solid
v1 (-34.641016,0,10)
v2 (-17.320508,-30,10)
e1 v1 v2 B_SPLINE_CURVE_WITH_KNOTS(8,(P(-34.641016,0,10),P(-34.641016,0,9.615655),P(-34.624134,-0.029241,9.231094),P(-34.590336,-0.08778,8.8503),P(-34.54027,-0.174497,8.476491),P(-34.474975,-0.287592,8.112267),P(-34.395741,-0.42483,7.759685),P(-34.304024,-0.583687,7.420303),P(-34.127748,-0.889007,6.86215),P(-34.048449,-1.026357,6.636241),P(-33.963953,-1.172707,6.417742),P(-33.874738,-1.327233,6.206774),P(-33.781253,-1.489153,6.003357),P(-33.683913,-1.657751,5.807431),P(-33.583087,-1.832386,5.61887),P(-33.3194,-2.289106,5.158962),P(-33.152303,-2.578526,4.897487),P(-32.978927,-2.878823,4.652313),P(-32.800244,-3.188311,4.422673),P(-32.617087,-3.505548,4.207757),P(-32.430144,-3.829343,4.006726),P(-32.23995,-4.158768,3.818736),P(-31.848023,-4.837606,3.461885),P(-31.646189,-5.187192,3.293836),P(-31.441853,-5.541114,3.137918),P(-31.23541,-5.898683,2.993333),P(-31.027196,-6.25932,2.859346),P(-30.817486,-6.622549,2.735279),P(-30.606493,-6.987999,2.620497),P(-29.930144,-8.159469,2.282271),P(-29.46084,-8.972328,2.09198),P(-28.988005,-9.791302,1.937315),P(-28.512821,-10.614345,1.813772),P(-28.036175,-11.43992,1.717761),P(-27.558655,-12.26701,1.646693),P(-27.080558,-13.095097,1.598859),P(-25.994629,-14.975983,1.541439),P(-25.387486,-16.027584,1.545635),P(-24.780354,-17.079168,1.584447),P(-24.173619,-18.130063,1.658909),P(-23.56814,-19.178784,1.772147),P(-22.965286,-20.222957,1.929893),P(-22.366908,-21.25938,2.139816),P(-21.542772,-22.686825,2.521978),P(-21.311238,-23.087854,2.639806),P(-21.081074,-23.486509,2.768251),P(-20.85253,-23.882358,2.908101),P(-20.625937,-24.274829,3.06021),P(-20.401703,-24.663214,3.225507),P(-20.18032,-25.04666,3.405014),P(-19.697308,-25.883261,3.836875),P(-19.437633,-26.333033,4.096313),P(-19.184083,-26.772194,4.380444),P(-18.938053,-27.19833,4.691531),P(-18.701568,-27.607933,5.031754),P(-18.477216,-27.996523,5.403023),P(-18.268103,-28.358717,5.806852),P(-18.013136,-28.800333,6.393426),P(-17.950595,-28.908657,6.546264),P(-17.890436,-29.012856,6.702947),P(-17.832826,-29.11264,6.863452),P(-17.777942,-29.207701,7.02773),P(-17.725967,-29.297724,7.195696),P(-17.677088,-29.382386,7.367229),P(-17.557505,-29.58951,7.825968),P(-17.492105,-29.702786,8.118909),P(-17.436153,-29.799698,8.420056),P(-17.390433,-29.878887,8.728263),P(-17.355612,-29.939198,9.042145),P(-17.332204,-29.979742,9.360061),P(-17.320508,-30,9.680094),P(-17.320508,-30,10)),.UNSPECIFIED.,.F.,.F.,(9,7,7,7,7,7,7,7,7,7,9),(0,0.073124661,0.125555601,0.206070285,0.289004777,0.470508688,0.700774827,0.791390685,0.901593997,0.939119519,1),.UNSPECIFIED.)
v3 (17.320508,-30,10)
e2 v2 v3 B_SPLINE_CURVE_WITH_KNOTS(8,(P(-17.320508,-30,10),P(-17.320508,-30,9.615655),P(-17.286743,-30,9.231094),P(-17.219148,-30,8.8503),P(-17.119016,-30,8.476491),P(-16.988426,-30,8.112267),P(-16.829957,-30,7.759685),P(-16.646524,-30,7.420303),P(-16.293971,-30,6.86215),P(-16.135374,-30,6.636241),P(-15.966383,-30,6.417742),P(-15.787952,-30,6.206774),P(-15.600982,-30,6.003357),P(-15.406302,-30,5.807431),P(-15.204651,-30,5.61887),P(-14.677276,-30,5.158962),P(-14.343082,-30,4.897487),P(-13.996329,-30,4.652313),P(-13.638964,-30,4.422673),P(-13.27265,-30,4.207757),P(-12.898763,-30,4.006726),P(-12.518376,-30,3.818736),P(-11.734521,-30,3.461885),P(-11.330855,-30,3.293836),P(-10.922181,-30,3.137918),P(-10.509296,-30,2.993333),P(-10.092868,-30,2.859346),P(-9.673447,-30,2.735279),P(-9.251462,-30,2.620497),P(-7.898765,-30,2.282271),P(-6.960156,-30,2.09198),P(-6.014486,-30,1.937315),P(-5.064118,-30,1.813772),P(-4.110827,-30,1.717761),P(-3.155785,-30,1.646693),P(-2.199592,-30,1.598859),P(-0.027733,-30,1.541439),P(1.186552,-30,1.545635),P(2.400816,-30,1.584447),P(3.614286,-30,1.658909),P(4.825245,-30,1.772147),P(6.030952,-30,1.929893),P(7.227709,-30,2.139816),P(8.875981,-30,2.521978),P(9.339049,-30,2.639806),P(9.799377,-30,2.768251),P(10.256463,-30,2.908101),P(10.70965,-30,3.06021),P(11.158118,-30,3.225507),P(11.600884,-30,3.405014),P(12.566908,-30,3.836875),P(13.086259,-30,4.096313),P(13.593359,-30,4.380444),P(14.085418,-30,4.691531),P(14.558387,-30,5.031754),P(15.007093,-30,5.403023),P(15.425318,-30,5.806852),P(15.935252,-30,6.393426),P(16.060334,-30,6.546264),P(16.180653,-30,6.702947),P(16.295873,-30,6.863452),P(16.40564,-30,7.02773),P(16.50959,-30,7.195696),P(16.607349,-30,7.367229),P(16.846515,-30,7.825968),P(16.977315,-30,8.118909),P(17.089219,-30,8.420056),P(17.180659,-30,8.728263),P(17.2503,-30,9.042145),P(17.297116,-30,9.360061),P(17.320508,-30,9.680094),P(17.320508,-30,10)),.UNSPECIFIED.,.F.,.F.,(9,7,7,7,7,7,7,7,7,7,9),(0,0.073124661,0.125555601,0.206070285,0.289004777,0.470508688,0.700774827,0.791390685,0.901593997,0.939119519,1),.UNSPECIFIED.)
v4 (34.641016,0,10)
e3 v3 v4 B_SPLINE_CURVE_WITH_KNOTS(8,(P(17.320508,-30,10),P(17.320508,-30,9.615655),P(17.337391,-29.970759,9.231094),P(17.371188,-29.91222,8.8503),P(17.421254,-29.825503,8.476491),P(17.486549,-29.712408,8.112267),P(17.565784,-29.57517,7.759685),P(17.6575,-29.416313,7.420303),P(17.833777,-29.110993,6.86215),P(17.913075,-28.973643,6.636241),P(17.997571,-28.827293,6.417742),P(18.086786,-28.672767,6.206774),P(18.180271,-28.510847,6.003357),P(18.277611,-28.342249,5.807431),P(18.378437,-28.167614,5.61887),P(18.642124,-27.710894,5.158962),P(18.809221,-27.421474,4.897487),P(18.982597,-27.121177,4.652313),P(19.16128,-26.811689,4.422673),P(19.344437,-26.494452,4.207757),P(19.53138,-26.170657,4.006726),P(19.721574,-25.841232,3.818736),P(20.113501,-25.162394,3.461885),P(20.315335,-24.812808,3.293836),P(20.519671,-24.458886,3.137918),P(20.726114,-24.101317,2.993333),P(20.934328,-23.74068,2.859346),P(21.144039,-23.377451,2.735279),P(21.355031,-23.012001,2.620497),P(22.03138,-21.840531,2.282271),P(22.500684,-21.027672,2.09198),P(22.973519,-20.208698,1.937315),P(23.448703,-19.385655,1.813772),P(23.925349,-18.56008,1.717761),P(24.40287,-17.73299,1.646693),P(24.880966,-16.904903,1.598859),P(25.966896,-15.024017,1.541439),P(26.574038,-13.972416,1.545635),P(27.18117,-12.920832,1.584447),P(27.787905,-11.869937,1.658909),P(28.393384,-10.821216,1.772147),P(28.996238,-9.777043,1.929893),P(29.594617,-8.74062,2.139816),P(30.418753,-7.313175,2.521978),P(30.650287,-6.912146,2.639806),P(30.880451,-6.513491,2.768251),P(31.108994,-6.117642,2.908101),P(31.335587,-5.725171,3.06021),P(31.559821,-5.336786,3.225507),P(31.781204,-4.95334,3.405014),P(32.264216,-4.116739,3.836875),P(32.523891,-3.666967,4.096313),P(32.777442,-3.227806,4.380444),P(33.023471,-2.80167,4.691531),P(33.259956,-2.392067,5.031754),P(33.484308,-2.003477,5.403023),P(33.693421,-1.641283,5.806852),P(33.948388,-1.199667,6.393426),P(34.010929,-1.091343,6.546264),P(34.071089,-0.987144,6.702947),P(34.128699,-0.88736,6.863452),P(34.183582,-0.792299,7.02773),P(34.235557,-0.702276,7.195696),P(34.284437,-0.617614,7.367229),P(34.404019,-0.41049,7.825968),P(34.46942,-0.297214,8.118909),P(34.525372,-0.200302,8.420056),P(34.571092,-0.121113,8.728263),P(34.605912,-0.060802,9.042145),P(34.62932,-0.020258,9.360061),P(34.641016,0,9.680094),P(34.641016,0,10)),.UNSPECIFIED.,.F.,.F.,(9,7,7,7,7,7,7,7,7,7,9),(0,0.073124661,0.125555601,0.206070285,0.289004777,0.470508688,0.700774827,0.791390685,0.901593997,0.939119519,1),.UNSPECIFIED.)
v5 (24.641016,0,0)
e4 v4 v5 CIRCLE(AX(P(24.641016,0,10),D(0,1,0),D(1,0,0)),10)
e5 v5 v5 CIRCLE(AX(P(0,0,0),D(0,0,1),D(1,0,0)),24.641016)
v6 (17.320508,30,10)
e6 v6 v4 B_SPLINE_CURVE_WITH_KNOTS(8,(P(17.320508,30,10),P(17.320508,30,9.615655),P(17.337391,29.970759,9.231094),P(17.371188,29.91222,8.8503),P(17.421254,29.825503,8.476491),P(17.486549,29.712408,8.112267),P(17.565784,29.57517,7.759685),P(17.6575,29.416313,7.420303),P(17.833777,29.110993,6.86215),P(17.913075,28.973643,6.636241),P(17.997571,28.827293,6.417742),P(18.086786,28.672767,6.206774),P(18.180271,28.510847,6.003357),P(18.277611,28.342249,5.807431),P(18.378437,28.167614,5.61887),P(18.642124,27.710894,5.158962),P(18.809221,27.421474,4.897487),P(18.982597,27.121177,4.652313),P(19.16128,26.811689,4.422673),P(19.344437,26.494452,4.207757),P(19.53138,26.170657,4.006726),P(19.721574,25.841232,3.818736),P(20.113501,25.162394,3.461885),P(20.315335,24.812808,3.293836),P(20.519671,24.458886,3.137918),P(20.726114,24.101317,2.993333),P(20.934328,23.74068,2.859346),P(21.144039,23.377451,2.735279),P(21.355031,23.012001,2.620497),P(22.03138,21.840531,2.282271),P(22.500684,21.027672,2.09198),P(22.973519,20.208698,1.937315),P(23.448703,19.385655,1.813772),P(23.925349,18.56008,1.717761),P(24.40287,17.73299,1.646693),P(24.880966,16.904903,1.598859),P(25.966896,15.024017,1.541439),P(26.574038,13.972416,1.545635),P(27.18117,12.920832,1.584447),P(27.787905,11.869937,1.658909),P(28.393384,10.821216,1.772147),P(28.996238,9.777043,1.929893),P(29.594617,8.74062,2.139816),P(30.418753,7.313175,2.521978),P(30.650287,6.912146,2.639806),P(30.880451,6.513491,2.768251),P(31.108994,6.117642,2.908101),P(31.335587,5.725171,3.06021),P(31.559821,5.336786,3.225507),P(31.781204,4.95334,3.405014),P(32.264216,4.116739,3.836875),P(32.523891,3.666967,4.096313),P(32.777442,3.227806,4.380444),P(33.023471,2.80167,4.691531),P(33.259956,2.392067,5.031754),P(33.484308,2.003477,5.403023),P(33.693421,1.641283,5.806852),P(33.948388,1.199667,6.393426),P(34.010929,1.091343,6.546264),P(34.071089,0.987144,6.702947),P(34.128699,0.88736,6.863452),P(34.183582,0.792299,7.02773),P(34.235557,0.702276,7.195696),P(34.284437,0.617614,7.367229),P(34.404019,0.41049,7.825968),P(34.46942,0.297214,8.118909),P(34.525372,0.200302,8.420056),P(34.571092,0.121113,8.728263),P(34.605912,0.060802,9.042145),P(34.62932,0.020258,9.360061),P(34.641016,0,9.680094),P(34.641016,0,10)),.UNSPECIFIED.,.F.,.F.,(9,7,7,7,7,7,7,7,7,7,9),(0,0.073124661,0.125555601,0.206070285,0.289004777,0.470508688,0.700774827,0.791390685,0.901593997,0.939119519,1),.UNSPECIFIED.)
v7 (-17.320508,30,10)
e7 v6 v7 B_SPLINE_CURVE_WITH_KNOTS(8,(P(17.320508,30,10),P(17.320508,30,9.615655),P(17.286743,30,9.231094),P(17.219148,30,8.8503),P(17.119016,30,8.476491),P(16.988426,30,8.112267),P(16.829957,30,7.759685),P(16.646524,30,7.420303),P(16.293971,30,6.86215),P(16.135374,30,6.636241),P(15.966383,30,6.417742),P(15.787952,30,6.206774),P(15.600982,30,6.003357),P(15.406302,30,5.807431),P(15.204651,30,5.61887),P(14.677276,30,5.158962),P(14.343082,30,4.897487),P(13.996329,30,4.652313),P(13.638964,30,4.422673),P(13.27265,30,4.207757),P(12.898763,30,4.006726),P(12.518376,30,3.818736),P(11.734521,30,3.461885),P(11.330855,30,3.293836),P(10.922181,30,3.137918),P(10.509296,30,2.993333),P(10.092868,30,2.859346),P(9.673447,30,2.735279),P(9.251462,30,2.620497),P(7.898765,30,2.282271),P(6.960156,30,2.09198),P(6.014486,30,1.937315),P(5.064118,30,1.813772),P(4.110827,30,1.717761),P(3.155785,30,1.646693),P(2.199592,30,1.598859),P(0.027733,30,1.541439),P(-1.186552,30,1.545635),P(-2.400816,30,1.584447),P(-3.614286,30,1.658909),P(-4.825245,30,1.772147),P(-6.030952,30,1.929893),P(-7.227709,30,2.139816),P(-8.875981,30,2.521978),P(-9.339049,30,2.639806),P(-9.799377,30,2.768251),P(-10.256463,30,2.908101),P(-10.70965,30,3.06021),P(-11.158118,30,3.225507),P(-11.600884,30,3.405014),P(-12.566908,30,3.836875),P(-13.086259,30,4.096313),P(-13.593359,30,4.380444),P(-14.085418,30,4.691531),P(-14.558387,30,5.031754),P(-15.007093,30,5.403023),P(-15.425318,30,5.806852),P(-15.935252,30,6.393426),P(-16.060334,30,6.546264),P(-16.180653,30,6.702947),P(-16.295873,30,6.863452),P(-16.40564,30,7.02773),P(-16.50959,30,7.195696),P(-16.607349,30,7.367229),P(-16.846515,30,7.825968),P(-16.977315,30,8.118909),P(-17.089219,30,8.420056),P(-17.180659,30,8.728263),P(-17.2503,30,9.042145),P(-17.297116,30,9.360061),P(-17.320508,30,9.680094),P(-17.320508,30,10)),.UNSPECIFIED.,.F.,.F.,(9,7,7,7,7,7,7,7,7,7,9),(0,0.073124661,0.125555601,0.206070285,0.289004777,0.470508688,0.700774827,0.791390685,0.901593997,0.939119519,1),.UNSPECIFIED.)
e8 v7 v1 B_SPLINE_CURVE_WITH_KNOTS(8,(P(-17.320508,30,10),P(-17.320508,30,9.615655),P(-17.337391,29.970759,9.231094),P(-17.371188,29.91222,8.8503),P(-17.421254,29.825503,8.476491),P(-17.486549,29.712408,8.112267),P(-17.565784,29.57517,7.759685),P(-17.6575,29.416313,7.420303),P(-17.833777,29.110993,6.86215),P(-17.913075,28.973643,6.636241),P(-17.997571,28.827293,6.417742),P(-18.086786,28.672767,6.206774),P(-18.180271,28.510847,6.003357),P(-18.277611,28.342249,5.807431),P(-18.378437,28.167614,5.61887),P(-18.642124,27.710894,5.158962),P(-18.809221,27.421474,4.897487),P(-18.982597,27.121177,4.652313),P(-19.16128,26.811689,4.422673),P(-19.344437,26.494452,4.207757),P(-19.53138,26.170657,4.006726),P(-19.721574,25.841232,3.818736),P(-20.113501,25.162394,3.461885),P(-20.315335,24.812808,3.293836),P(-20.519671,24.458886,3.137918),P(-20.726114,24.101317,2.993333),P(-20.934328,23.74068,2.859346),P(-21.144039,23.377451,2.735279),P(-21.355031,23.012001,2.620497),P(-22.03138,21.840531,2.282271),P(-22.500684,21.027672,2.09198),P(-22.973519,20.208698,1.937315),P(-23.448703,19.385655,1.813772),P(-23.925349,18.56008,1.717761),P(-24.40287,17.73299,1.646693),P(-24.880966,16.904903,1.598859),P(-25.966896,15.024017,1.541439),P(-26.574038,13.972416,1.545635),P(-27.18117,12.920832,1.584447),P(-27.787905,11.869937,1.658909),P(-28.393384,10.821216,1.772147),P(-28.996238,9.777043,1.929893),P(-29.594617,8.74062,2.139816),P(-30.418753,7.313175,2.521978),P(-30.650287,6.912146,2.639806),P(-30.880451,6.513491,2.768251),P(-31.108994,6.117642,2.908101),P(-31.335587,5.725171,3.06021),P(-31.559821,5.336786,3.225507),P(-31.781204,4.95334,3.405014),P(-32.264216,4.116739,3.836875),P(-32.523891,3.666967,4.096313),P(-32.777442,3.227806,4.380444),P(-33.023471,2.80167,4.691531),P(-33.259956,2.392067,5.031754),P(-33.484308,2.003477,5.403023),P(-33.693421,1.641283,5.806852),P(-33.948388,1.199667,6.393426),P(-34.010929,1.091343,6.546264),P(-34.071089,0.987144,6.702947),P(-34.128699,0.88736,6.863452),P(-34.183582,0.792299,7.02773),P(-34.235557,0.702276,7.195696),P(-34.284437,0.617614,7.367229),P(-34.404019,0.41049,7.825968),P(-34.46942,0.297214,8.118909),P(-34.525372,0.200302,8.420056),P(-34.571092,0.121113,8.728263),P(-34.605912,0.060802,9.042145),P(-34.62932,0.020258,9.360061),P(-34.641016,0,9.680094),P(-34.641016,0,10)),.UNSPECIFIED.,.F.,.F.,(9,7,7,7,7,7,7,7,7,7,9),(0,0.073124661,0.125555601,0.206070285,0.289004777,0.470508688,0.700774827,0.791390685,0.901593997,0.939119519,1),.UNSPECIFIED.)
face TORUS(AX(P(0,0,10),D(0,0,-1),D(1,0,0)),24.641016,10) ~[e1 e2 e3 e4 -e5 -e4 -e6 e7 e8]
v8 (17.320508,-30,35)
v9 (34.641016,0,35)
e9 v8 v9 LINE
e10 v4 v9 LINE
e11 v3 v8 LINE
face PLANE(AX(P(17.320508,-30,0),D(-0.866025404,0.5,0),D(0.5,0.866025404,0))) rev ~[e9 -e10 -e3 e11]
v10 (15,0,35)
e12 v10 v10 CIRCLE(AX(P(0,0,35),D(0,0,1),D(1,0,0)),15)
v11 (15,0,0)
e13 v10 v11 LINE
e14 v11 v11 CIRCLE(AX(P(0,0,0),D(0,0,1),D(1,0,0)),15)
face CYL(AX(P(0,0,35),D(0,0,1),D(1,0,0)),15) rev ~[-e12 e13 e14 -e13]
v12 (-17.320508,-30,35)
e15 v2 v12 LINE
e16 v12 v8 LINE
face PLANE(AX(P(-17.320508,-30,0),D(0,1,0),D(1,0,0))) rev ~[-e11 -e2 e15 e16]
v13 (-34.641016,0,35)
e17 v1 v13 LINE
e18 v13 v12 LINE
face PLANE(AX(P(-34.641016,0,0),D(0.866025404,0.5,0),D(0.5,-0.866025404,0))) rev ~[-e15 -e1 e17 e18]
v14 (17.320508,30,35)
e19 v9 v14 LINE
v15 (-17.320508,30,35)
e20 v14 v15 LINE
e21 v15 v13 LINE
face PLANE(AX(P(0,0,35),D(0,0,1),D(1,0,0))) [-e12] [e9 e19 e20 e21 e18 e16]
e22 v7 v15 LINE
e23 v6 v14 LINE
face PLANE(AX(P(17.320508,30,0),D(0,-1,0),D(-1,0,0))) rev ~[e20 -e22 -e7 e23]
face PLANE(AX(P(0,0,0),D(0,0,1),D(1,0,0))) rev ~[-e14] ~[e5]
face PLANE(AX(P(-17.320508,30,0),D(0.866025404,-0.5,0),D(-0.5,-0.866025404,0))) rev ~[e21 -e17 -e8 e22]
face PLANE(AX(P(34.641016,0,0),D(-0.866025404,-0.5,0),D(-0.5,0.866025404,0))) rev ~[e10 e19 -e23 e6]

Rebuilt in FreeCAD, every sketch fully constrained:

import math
import FreeCAD as App
import Part
import Sketcher
from FreeCAD import Vector
Q = App.Units.Quantity


def add_polygon(sketch, points):
    """Adds a closed chain of lines whose ends are joined by coincident constraints."""
    first, n = sketch.GeometryCount, len(points)
    for a, b in zip(points, points[1:] + points[:1]):
        sketch.addGeometry(Part.LineSegment(App.Vector(*a, 0), App.Vector(*b, 0)), False)
    for i in range(n):
        sketch.addConstraint(Sketcher.Constraint("Coincident", first + i, 2, first + (i + 1) % n, 1))

doc = App.newDocument("Part")
params = doc.addObject("Spreadsheet::Sheet", "Params")
for row, (alias, value) in enumerate([
    ("pad1_length", "35 mm"),
    ("sketch2_diameter", "30 mm"),
    ("pocket1_length", "35 mm"),
    ("sketch3_radius", "10 mm"),
    ("groove_angle", "360 deg"),
], start=1):
    params.set(f"A{row}", alias)
    params.set(f"B{row}", "=" + value)
    params.setAlias(f"B{row}", alias)

body = doc.addObject("PartDesign::Body", "Body")

sketch1 = body.newObject("Sketcher::SketchObject", "Sketch")
sketch1.AttachmentSupport = (doc.getObject("XY_Plane"), [""])
sketch1.MapMode = "FlatFace"
add_polygon(sketch1, [(-35, 0), (-17, -30), (17, -30), (35, 0), (17, 30), (-17, 30)])
sketch1.addConstraint([
    Sketcher.Constraint("Horizontal", 1),
    Sketcher.Constraint("Horizontal", 4),
    Sketcher.Constraint("Symmetric", 0, 2, 3, 2, -1, 1),
    Sketcher.Constraint("Symmetric", 2, 2, 5, 2, -1, 1),
    Sketcher.Constraint("PointOnObject", 2, 2, -1),
    Sketcher.Constraint("Parallel", 2, 5),
    Sketcher.Constraint("Vertical", 1, 2, 3, 2),
    Sketcher.Constraint("Angle", 0, Q("-60 deg")),
    Sketcher.Constraint("DistanceY", 0, 2, -1, 1, Q("30 mm")),
    Sketcher.Constraint("DistanceX", 1, 1, 1, 2, Q("34.641016 mm")),
])
pad1 = body.newObject("PartDesign::Pad", "Pad")
pad1.Profile = sketch1
pad1.setExpression("Length", "Params.pad1_length")

sketch2 = body.newObject("Sketcher::SketchObject", "Sketch001")
sketch2.AttachmentSupport = (doc.getObject("XY_Plane"), [""])
sketch2.MapMode = "FlatFace"
sketch2.AttachmentOffset = App.Placement(Vector(0, 0, 35), App.Rotation())
sketch2.addGeometry(Part.Circle(Vector(0, 0, 0), Vector(0, 0, 1), 15), False)
sketch2.addConstraint([
    Sketcher.Constraint("Coincident", 0, 3, -1, 1),
    Sketcher.Constraint("Diameter", 0, Q("30 mm")),
])
sketch2.setExpression("Constraints[1]", "Params.sketch2_diameter")
pocket1 = body.newObject("PartDesign::Pocket", "Pocket")
pocket1.Profile = sketch2
pocket1.setExpression("Length", "Params.pocket1_length")

sketch3 = body.newObject("Sketcher::SketchObject", "Sketch002")
sketch3.AttachmentSupport = (doc.getObject("XZ_Plane"), [""])
sketch3.MapMode = "FlatFace"
sketch3.addGeometry([
    Part.LineSegment(Vector(35, 0, 0), Vector(25, 0, 0)),
    Part.ArcOfCircle(Part.Circle(Vector(25, 10, 0), Vector(0, 0, 1), 10), math.radians(-90), math.radians(0)),
    Part.LineSegment(Vector(35, 10, 0), Vector(35, 0, 0)),
], False)
sketch3.addConstraint([
    Sketcher.Constraint("Tangent", 0, 2, 1, 1),
    Sketcher.Constraint("Tangent", 1, 2, 2, 1),
    Sketcher.Constraint("Coincident", 2, 2, 0, 1),
    Sketcher.Constraint("Horizontal", 0),
    Sketcher.Constraint("Vertical", 2),
    Sketcher.Constraint("PointOnObject", 0, 2, -1),
    Sketcher.Constraint("Radius", 1, Q("10 mm")),
    Sketcher.Constraint("DistanceX", -1, 1, 1, 3, Q("24.641016 mm")),
])
sketch3.setExpression("Constraints[6]", "Params.sketch3_radius")
groove = body.newObject("PartDesign::Groove", "Groove")
groove.Profile = sketch3
groove.ReferenceAxis = (sketch3, ["V_Axis"])
groove.setExpression("Angle", "Params.groove_angle")

doc.recompute()
